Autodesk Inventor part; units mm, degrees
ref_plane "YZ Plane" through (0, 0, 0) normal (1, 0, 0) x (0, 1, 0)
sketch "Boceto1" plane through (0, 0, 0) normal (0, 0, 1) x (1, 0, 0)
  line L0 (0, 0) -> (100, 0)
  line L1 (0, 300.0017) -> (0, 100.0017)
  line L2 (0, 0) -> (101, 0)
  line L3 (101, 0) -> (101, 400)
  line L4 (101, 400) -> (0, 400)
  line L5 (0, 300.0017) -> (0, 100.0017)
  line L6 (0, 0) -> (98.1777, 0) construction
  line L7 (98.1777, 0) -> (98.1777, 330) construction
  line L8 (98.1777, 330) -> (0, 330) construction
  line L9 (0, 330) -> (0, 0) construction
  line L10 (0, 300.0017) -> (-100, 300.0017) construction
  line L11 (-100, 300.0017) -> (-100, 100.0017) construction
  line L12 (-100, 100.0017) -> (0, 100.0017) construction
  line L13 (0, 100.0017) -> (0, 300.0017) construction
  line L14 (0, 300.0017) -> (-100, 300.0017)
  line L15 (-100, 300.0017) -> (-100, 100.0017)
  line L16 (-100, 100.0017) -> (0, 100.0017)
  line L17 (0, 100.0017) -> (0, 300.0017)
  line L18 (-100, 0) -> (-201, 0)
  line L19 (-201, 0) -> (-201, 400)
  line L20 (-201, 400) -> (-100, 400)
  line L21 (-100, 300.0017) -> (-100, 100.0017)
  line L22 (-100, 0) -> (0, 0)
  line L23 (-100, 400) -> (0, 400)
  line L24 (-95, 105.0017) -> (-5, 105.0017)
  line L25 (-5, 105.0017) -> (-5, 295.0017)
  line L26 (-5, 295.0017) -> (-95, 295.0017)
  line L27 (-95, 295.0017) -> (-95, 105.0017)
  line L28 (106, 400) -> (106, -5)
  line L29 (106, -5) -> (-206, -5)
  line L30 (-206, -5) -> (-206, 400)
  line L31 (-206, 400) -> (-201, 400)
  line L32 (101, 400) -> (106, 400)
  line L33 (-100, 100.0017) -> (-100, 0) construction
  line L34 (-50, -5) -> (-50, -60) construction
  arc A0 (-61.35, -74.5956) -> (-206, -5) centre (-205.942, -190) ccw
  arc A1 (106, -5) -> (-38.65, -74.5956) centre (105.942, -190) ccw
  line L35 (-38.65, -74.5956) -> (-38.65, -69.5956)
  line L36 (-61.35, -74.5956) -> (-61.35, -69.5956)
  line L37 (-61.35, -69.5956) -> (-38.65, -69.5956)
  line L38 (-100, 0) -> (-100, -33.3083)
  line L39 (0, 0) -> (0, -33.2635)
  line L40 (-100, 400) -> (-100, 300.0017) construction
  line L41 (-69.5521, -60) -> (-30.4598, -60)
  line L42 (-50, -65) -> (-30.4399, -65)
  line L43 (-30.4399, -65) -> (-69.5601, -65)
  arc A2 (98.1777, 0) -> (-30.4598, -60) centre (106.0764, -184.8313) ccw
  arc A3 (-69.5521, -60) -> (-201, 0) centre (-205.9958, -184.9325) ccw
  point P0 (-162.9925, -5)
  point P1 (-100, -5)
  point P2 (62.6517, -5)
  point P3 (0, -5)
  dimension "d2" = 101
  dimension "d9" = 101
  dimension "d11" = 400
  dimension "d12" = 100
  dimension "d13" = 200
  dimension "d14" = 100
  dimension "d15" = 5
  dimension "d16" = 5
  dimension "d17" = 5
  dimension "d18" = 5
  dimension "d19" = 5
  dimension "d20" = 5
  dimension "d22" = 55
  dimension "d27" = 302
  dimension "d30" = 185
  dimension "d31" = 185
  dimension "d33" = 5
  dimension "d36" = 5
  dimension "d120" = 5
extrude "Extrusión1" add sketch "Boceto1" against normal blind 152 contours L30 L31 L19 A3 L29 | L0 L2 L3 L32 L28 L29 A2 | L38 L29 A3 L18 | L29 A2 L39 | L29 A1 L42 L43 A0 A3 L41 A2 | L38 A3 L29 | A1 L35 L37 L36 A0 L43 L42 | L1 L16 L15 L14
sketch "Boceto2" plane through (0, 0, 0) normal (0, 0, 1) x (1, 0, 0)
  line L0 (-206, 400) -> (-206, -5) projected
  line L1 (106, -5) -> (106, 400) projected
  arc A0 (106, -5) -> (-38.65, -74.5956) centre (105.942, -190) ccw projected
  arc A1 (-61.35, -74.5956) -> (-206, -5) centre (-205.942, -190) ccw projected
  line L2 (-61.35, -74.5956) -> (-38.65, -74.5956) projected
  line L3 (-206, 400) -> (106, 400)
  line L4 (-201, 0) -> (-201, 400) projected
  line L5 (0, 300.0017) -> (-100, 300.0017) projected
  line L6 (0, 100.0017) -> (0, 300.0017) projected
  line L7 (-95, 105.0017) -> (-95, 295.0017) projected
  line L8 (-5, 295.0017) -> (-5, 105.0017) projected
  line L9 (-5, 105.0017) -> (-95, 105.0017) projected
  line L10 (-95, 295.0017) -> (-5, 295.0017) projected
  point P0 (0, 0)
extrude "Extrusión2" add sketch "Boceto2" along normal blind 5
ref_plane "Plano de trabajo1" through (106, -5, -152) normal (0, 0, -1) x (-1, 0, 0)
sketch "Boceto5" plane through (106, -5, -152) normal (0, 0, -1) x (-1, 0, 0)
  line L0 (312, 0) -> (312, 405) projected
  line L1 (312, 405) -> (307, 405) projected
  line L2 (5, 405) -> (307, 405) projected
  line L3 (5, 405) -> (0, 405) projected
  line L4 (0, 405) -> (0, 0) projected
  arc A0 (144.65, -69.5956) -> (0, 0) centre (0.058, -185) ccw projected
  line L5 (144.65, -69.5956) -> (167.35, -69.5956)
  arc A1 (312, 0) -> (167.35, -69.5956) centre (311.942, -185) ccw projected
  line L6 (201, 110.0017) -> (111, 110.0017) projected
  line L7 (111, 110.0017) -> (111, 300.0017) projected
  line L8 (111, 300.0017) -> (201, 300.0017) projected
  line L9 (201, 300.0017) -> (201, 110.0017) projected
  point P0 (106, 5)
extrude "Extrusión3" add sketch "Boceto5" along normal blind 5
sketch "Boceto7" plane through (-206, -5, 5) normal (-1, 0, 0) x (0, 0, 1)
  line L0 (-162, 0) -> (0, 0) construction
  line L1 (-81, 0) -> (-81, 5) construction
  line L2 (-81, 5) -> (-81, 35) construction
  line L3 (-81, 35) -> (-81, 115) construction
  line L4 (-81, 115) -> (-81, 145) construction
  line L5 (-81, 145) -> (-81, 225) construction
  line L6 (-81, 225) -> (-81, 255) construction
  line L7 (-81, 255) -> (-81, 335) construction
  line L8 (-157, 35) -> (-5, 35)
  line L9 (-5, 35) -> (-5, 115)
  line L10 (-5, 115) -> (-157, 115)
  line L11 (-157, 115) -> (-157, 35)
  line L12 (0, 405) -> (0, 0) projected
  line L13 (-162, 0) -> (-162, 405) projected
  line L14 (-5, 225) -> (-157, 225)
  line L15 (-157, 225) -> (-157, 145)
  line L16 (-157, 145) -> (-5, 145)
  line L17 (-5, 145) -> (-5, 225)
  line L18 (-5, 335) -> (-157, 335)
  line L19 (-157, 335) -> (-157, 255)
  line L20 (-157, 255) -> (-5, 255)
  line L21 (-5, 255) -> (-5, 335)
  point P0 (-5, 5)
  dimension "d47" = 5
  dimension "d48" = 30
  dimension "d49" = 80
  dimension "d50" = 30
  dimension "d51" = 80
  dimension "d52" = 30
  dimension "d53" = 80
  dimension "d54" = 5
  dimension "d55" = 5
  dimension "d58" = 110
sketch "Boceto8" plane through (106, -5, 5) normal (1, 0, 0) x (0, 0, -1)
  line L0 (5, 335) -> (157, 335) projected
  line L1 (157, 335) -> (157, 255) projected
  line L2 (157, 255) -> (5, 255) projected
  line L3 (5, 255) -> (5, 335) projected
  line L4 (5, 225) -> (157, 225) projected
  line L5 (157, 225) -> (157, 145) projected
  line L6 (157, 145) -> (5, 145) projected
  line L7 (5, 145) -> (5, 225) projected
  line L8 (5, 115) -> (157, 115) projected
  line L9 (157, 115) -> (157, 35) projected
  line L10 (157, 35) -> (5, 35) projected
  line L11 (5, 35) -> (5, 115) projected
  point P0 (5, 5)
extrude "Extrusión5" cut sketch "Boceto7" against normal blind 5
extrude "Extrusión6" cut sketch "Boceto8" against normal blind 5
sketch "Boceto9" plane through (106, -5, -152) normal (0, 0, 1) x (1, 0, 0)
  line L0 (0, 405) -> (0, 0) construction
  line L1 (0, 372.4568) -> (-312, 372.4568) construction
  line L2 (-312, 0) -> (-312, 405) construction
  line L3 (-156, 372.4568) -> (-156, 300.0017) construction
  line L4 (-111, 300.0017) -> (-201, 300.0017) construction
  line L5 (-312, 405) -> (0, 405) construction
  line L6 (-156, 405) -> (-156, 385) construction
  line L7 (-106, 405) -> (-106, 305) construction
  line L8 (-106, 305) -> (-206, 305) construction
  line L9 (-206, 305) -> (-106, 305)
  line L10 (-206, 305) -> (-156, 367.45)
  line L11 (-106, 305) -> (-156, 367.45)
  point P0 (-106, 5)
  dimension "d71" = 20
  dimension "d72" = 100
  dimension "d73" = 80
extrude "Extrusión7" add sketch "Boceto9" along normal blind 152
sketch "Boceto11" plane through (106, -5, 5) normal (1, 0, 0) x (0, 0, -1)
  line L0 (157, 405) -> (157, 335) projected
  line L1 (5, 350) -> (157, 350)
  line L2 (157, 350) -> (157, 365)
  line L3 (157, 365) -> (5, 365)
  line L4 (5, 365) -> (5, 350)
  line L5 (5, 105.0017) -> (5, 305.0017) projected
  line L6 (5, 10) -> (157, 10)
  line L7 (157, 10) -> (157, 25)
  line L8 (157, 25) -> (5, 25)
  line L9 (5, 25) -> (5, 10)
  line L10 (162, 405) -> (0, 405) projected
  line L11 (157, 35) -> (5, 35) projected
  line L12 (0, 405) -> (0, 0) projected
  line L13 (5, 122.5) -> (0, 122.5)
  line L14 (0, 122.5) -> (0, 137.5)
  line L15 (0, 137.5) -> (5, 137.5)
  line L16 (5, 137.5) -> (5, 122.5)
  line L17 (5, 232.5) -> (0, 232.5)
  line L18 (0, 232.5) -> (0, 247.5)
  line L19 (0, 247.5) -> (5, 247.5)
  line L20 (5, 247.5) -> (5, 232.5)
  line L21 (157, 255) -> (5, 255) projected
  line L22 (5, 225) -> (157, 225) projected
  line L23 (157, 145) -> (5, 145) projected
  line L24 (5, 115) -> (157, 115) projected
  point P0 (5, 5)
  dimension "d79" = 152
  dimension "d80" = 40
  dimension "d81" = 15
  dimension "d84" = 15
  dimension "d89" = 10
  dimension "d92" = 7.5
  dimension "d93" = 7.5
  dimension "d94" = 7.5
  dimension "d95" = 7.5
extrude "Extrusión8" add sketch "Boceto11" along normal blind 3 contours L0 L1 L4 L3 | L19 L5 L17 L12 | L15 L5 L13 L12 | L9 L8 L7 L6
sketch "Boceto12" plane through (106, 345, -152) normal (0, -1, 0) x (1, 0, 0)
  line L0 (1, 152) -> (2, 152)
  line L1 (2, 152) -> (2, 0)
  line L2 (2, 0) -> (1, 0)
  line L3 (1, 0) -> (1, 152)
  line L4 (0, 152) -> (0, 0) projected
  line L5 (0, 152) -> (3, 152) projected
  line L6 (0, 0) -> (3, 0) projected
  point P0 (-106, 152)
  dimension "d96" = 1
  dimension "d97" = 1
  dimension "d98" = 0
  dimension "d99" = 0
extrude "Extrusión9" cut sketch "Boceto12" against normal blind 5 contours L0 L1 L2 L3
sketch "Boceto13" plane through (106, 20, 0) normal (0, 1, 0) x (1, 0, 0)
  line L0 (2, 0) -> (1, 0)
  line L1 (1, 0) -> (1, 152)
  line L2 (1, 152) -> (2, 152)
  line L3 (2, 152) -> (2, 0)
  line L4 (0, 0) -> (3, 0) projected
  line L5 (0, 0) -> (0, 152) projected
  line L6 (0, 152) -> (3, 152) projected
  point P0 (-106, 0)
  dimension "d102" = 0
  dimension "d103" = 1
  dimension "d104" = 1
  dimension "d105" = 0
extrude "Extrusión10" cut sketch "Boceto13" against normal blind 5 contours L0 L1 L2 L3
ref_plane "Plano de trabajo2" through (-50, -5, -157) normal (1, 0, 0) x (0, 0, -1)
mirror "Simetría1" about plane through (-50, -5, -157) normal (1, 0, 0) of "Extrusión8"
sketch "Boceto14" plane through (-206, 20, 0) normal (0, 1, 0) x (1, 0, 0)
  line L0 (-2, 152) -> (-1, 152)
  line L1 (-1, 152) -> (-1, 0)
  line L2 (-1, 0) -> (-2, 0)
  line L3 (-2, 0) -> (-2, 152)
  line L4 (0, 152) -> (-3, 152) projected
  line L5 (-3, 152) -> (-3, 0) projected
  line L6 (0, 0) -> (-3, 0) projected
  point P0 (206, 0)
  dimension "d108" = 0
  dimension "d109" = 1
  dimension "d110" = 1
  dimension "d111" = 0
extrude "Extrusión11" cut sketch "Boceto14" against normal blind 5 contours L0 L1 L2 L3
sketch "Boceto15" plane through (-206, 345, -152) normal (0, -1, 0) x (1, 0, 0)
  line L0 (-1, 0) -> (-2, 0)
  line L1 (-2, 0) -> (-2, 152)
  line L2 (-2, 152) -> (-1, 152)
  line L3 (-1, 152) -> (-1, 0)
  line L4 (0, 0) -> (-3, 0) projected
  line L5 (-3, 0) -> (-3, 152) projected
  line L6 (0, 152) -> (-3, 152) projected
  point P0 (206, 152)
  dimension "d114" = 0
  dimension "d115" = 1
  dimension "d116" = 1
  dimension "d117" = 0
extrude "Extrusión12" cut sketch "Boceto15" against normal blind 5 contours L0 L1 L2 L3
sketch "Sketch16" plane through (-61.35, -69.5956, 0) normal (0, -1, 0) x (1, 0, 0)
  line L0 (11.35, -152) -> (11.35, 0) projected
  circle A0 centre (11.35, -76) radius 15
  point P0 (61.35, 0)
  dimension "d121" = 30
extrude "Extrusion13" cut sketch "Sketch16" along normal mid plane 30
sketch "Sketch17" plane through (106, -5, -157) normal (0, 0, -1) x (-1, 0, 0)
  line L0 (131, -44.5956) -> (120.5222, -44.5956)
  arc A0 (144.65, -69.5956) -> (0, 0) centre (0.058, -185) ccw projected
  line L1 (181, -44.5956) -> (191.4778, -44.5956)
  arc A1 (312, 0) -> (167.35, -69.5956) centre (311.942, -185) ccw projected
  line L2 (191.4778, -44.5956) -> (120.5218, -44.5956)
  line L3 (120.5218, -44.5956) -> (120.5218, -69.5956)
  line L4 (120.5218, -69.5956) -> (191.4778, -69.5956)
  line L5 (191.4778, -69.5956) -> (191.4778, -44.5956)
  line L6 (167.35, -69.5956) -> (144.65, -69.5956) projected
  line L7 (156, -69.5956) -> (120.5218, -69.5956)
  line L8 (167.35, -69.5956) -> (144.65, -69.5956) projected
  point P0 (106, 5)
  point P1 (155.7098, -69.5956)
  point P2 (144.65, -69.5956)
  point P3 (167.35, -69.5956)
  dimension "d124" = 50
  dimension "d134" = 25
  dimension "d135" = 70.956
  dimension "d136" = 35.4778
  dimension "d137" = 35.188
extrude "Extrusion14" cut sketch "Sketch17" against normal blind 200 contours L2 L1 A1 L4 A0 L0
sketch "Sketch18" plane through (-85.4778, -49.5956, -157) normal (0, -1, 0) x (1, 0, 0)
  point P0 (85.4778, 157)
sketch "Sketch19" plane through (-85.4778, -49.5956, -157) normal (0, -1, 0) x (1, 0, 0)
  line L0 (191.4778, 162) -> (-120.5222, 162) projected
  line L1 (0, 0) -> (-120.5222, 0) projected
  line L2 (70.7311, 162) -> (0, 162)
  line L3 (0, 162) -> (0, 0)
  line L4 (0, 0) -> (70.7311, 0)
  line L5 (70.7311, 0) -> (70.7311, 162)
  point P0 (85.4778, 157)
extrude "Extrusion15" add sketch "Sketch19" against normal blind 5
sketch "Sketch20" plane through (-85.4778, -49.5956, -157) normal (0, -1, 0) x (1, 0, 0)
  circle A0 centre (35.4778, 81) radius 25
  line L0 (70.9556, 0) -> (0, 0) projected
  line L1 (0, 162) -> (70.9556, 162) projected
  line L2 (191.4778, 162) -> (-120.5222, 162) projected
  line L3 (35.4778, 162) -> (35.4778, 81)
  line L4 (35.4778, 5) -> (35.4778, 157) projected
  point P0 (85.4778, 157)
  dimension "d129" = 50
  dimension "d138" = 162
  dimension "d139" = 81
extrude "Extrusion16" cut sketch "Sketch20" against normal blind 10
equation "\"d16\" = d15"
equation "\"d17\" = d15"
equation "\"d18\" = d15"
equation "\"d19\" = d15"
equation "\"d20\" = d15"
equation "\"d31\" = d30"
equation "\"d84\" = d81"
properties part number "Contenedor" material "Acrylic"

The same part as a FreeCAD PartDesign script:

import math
import FreeCAD as App
import Part
import Sketcher

V = App.Vector


def add_polygon(sketch, points):
    """Adds a closed chain of lines whose ends are joined by coincident constraints."""
    first, n = sketch.GeometryCount, len(points)
    for a, b in zip(points, points[1:] + points[:1]):
        sketch.addGeometry(Part.LineSegment(App.Vector(*a, 0), App.Vector(*b, 0)), False)
    for i in range(n):
        sketch.addConstraint(Sketcher.Constraint("Coincident", first + i, 2, first + (i + 1) % n, 1))

doc = App.newDocument("Part")
body = doc.addObject("PartDesign::Body", "Body")
body.AllowCompound = True

# Sketch on XY plane
sketch1 = body.newObject("Sketcher::SketchObject", "Sketch")
sketch1.AttachmentSupport = (doc.getObject("XY_Plane"), [""])
sketch1.MapMode = "FlatFace"
sketch1.addGeometry(Part.LineSegment(V(-206, 400, 0), V(-206, -5, 0)), False)  # 0
sketch1.addGeometry(Part.ArcOfCircle(Part.Circle(V(-205.9, -190, 0), V(0, 0, 1), 185), math.radians(39), math.radians(90)), False)  # 1
sketch1.addGeometry(Part.LineSegment(V(-61.4, -74.6, 0), V(-61.4, -69.6, 0)), False)  # 2
sketch1.addGeometry(Part.LineSegment(V(-61.4, -69.6, 0), V(-38.6, -69.6, 0)), False)  # 3
sketch1.addGeometry(Part.LineSegment(V(-38.6, -69.6, 0), V(-38.6, -74.6, 0)), False)  # 4
sketch1.addGeometry(Part.ArcOfCircle(Part.Circle(V(105.9, -190, 0), V(0, 0, 1), 185), math.radians(90), math.radians(141)), False)  # 5
sketch1.addGeometry(Part.LineSegment(V(106, -5, 0), V(106, 400, 0)), False)  # 6
sketch1.addGeometry(Part.LineSegment(V(106, 400, 0), V(101, 400, 0)), False)  # 7
sketch1.addGeometry(Part.LineSegment(V(101, 400, 0), V(101, 0, 0)), False)  # 8
sketch1.addGeometry(Part.LineSegment(V(101, 0, 0), V(98.2, 0, 0)), False)  # 9
sketch1.addGeometry(Part.ArcOfCircle(Part.Circle(V(106.1, -184.8, 0), V(0, 0, 1), 185), math.radians(92.45), math.radians(103.58)), False)  # 10
sketch1.addGeometry(Part.LineSegment(V(62.7, -5, 0), V(0, -5, 0)), False)  # 11
sketch1.addGeometry(Part.LineSegment(V(0, -5, 0), V(0, -33.3, 0)), False)  # 12
sketch1.addGeometry(Part.ArcOfCircle(Part.Circle(V(106.1, -184.8, 0), V(0, 0, 1), 185), math.radians(124.99), math.radians(137.56)), False)  # 13
sketch1.addGeometry(Part.LineSegment(V(-30.5, -60, 0), V(-69.6, -60, 0)), False)  # 14
sketch1.addGeometry(Part.ArcOfCircle(Part.Circle(V(-206, -184.9, 0), V(0, 0, 1), 185), math.radians(42.48), math.radians(55.04)), False)  # 15
sketch1.addGeometry(Part.LineSegment(V(-100, -33.3, 0), V(-100, 0, 0)), False)  # 16
sketch1.addGeometry(Part.LineSegment(V(-100, 0, 0), V(-201, 0, 0)), False)  # 17
sketch1.addGeometry(Part.LineSegment(V(-201, 0, 0), V(-201, 400, 0)), False)  # 18
sketch1.addGeometry(Part.LineSegment(V(-201, 400, 0), V(-206, 400, 0)), False)  # 19
add_polygon(sketch1, [(0, 100), (0, 300), (-100, 300), (-100, 100)])  # lines 20-23
add_polygon(sketch1, [(-5, 105), (-95, 105), (-95, 295), (-5, 295)])  # lines 24-27
sketch1.addConstraint(Sketcher.Constraint("Coincident", 0, 2, 1, 2))
sketch1.addConstraint(Sketcher.Constraint("Coincident", 1, 1, 2, 1))
sketch1.addConstraint(Sketcher.Constraint("Coincident", 2, 2, 3, 1))
sketch1.addConstraint(Sketcher.Constraint("Coincident", 3, 2, 4, 1))
sketch1.addConstraint(Sketcher.Constraint("Coincident", 4, 2, 5, 2))
sketch1.addConstraint(Sketcher.Constraint("Coincident", 5, 1, 6, 1))
sketch1.addConstraint(Sketcher.Constraint("Coincident", 6, 2, 7, 1))
sketch1.addConstraint(Sketcher.Constraint("Coincident", 7, 2, 8, 1))
sketch1.addConstraint(Sketcher.Constraint("Coincident", 8, 2, 9, 1))
sketch1.addConstraint(Sketcher.Constraint("Coincident", 9, 2, 10, 1))
sketch1.addConstraint(Sketcher.Constraint("Coincident", 10, 2, 11, 1))
sketch1.addConstraint(Sketcher.Constraint("Coincident", 11, 2, 12, 1))
sketch1.addConstraint(Sketcher.Constraint("Coincident", 12, 2, 13, 1))
sketch1.addConstraint(Sketcher.Constraint("Coincident", 13, 2, 14, 1))
sketch1.addConstraint(Sketcher.Constraint("Coincident", 14, 2, 15, 1))
sketch1.addConstraint(Sketcher.Constraint("Coincident", 15, 2, 16, 1))
sketch1.addConstraint(Sketcher.Constraint("Coincident", 16, 2, 17, 1))
sketch1.addConstraint(Sketcher.Constraint("Coincident", 17, 2, 18, 1))
sketch1.addConstraint(Sketcher.Constraint("Coincident", 18, 2, 19, 1))
sketch1.addConstraint(Sketcher.Constraint("Coincident", 19, 2, 0, 1))
sketch1.addConstraint(Sketcher.Constraint("Vertical", 0))
sketch1.addConstraint(Sketcher.Constraint("Vertical", 2))
sketch1.addConstraint(Sketcher.Constraint("Horizontal", 3))
sketch1.addConstraint(Sketcher.Constraint("Vertical", 4))
sketch1.addConstraint(Sketcher.Constraint("Vertical", 6))
sketch1.addConstraint(Sketcher.Constraint("Horizontal", 7))
sketch1.addConstraint(Sketcher.Constraint("Vertical", 8))
sketch1.addConstraint(Sketcher.Constraint("Horizontal", 9))
sketch1.addConstraint(Sketcher.Constraint("Horizontal", 11))
sketch1.addConstraint(Sketcher.Constraint("Vertical", 12))
sketch1.addConstraint(Sketcher.Constraint("Horizontal", 14))
sketch1.addConstraint(Sketcher.Constraint("Vertical", 16))
sketch1.addConstraint(Sketcher.Constraint("Horizontal", 17))
sketch1.addConstraint(Sketcher.Constraint("Vertical", 18))
sketch1.addConstraint(Sketcher.Constraint("Horizontal", 19))
sketch1.addConstraint(Sketcher.Constraint("Vertical", 20))
sketch1.addConstraint(Sketcher.Constraint("Horizontal", 21))
sketch1.addConstraint(Sketcher.Constraint("Vertical", 22))
sketch1.addConstraint(Sketcher.Constraint("Horizontal", 23))
sketch1.addConstraint(Sketcher.Constraint("Horizontal", 24))
sketch1.addConstraint(Sketcher.Constraint("Vertical", 25))
sketch1.addConstraint(Sketcher.Constraint("Horizontal", 26))
sketch1.addConstraint(Sketcher.Constraint("Vertical", 27))
sketch1.addConstraint(Sketcher.Constraint("Coincident", 13, 3, 10, 3))
sketch1.addConstraint(Sketcher.Constraint("Equal", 1, 5))
sketch1.addConstraint(Sketcher.Constraint("Equal", 5, 10))
sketch1.addConstraint(Sketcher.Constraint("Equal", 10, 13))
sketch1.addConstraint(Sketcher.Constraint("Equal", 13, 15))
sketch1.addConstraint(Sketcher.Constraint("PointOnObject", 8, 2, -1))
sketch1.addConstraint(Sketcher.Constraint("PointOnObject", 11, 2, -2))
sketch1.addConstraint(Sketcher.Constraint("PointOnObject", 16, 2, -1))
sketch1.addConstraint(Sketcher.Constraint("PointOnObject", 20, 2, -2))
sketch1.addConstraint(Sketcher.Constraint("Horizontal", 1, 3, 5, 3))
sketch1.addConstraint(Sketcher.Constraint("Horizontal", 1, 1, 4, 2))
sketch1.addConstraint(Sketcher.Constraint("Horizontal", 5, 1, 10, 2))
sketch1.addConstraint(Sketcher.Constraint("Horizontal", 7, 2, 18, 2))
sketch1.addConstraint(Sketcher.Constraint("Vertical", 16, 2, 21, 2))
sketch1.addConstraint(Sketcher.Constraint("Equal", 7, 19))
sketch1.addConstraint(Sketcher.Constraint("Equal", 19, 2))
sketch1.addConstraint(Sketcher.Constraint("Radius", 1, 185.0))
sketch1.addConstraint(Sketcher.Constraint("DistanceX", 7, 2, 7, 1, 5.0))
sketch1.addConstraint(Sketcher.Constraint("DistanceX", 17, 2, 17, 1, 101.0))
sketch1.addConstraint(Sketcher.Constraint("DistanceX", 21, 2, 21, 1, 100.0))
sketch1.addConstraint(Sketcher.Constraint("DistanceY", 8, 2, 8, 1, 400.0))
sketch1.addConstraint(Sketcher.Constraint("DistanceY", 20, 1, 20, 2, 200.0))
sketch1.addConstraint(Sketcher.Constraint("DistanceY", 0, 2, -1, 1, 5.0))
sketch1.addConstraint(Sketcher.Constraint("DistanceX", -1, 1, 7, 2, 101.0))
sketch1.addConstraint(Sketcher.Constraint("DistanceX", 26, 2, -1, 1, 5.0))
sketch1.addConstraint(Sketcher.Constraint("DistanceX", 22, 2, 24, 2, 5.0))
sketch1.addConstraint(Sketcher.Constraint("DistanceY", 22, 2, 24, 2, 5.0))
sketch1.addConstraint(Sketcher.Constraint("DistanceY", 25, 2, 21, 2, 5.0))
sketch1.addConstraint(Sketcher.Constraint("DistanceX", 3, 1, 3, 2, 22.7))
sketch1.addConstraint(Sketcher.Constraint("DistanceY", 13, 2, -1, 1, 60.0))
sketch1.addConstraint(Sketcher.Constraint("DistanceX", 1, 1, -1, 1, 61.35))
sketch1.addConstraint(Sketcher.Constraint("DistanceY", 15, 2, 22, 2, 133.31))
sketch1.addConstraint(Sketcher.Constraint("DistanceX", 9, 2, 9, 1, 2.8223))
sketch1.addConstraint(Sketcher.Constraint("DistanceX", 11, 2, 11, 1, 62.6517))
sketch1.addConstraint(Sketcher.Constraint("DistanceX", 14, 2, 14, 1, 39.0923))
sketch1.addConstraint(Sketcher.Constraint("DistanceY", 16, 1, 16, 2, 33.3083))
sketch1.addConstraint(Sketcher.Constraint("DistanceX", 1, 3, -1, 1, 205.942))
pad1 = body.newObject("PartDesign::Pad", "Pad")
pad1.Profile = sketch1
pad1.Length = 152
pad1.Reversed = True

# Sketch on XY plane
sketch2 = body.newObject("Sketcher::SketchObject", "Sketch001")
sketch2.AttachmentSupport = (doc.getObject("XY_Plane"), [""])
sketch2.MapMode = "FlatFace"
sketch2.addGeometry(Part.LineSegment(V(106, 400, 0), V(-206, 400, 0)), False)  # 0
sketch2.addGeometry(Part.LineSegment(V(-206, 400, 0), V(-206, -5, 0)), False)  # 1
sketch2.addGeometry(Part.ArcOfCircle(Part.Circle(V(-206, -190, 0), V(0, 0, 1), 185), math.radians(39), math.radians(90)), False)  # 2
sketch2.addGeometry(Part.LineSegment(V(-61, -75, 0), V(-39, -75, 0)), False)  # 3
sketch2.addGeometry(Part.ArcOfCircle(Part.Circle(V(106, -190, 0), V(0, 0, 1), 185), math.radians(90), math.radians(141)), False)  # 4
sketch2.addGeometry(Part.LineSegment(V(106, -5, 0), V(106, 400, 0)), False)  # 5
add_polygon(sketch2, [(-5, 105), (-95, 105), (-95, 295), (-5, 295)])  # lines 6-9
sketch2.addConstraint(Sketcher.Constraint("Coincident", 0, 2, 1, 1))
sketch2.addConstraint(Sketcher.Constraint("Coincident", 1, 2, 2, 2))
sketch2.addConstraint(Sketcher.Constraint("Coincident", 2, 1, 3, 1))
sketch2.addConstraint(Sketcher.Constraint("Coincident", 3, 2, 4, 2))
sketch2.addConstraint(Sketcher.Constraint("Coincident", 4, 1, 5, 1))
sketch2.addConstraint(Sketcher.Constraint("Coincident", 5, 2, 0, 1))
sketch2.addConstraint(Sketcher.Constraint("Horizontal", 0))
sketch2.addConstraint(Sketcher.Constraint("Vertical", 1))
sketch2.addConstraint(Sketcher.Constraint("Horizontal", 3))
sketch2.addConstraint(Sketcher.Constraint("Vertical", 5))
sketch2.addConstraint(Sketcher.Constraint("Horizontal", 6))
sketch2.addConstraint(Sketcher.Constraint("Vertical", 7))
sketch2.addConstraint(Sketcher.Constraint("Horizontal", 8))
sketch2.addConstraint(Sketcher.Constraint("Vertical", 9))
sketch2.addConstraint(Sketcher.Constraint("Equal", 2, 4))
sketch2.addConstraint(Sketcher.Constraint("Horizontal", 2, 3, 4, 3))
sketch2.addConstraint(Sketcher.Constraint("Radius", 2, 185.0))
sketch2.addConstraint(Sketcher.Constraint("DistanceX", 0, 2, 0, 1, 312.0))
sketch2.addConstraint(Sketcher.Constraint("DistanceX", 6, 2, 6, 1, 90.0))
sketch2.addConstraint(Sketcher.Constraint("DistanceY", 1, 2, 1, 1, 405.0))
sketch2.addConstraint(Sketcher.Constraint("DistanceY", 7, 1, 7, 2, 190.0))
sketch2.addConstraint(Sketcher.Constraint("DistanceX", 3, 1, 3, 2, 22.7))
sketch2.addConstraint(Sketcher.Constraint("DistanceY", 2, 3, -1, 1, 190.0))
sketch2.addConstraint(Sketcher.Constraint("DistanceX", 0, 2, -1, 1, 206.0))
sketch2.addConstraint(Sketcher.Constraint("DistanceX", 6, 2, -1, 1, 95.0))
sketch2.addConstraint(Sketcher.Constraint("DistanceX", 2, 1, -1, 1, 61.35))
sketch2.addConstraint(Sketcher.Constraint("DistanceX", 2, 3, -1, 1, 205.942))
sketch2.addConstraint(Sketcher.Constraint("DistanceY", -1, 1, 6, 2, 105.0017))
pad2 = body.newObject("PartDesign::Pad", "Pad001")
pad2.Profile = sketch2
pad2.Length = 5

# Sketch on XY plane
sketch3 = body.newObject("Sketcher::SketchObject", "Sketch002")
sketch3.AttachmentSupport = (doc.getObject("XY_Plane"), [""])
sketch3.MapMode = "FlatFace"
sketch3.AttachmentOffset = App.Placement(V(0, 0, -152), App.Rotation())
sketch3.addGeometry(Part.ArcOfCircle(Part.Circle(V(-206, -190, 0), V(0, 0, 1), 185), math.radians(39), math.radians(90)), False)  # 0
sketch3.addGeometry(Part.LineSegment(V(-206, -5, 0), V(-206, 400, 0)), False)  # 1
sketch3.addGeometry(Part.LineSegment(V(-206, 400, 0), V(106, 400, 0)), False)  # 2
sketch3.addGeometry(Part.LineSegment(V(106, 400, 0), V(106, -5, 0)), False)  # 3
sketch3.addGeometry(Part.ArcOfCircle(Part.Circle(V(106, -190, 0), V(0, 0, 1), 185), math.radians(90), math.radians(141)), False)  # 4
sketch3.addGeometry(Part.LineSegment(V(-39, -75, 0), V(-61, -75, 0)), False)  # 5
add_polygon(sketch3, [(-95, 295), (-95, 105), (-5, 105), (-5, 295)])  # lines 6-9
sketch3.addConstraint(Sketcher.Constraint("Coincident", 0, 2, 1, 1))
sketch3.addConstraint(Sketcher.Constraint("Coincident", 1, 2, 2, 1))
sketch3.addConstraint(Sketcher.Constraint("Coincident", 2, 2, 3, 1))
sketch3.addConstraint(Sketcher.Constraint("Coincident", 3, 2, 4, 1))
sketch3.addConstraint(Sketcher.Constraint("Coincident", 4, 2, 5, 1))
sketch3.addConstraint(Sketcher.Constraint("Coincident", 5, 2, 0, 1))
sketch3.addConstraint(Sketcher.Constraint("Vertical", 1))
sketch3.addConstraint(Sketcher.Constraint("Horizontal", 2))
sketch3.addConstraint(Sketcher.Constraint("Vertical", 3))
sketch3.addConstraint(Sketcher.Constraint("Horizontal", 5))
sketch3.addConstraint(Sketcher.Constraint("Vertical", 6))
sketch3.addConstraint(Sketcher.Constraint("Horizontal", 7))
sketch3.addConstraint(Sketcher.Constraint("Vertical", 8))
sketch3.addConstraint(Sketcher.Constraint("Horizontal", 9))
sketch3.addConstraint(Sketcher.Constraint("Equal", 0, 4))
sketch3.addConstraint(Sketcher.Constraint("Horizontal", 0, 3, 4, 3))
sketch3.addConstraint(Sketcher.Constraint("Radius", 0, 185.0))
sketch3.addConstraint(Sketcher.Constraint("DistanceX", 2, 1, 2, 2, 312.0))
sketch3.addConstraint(Sketcher.Constraint("DistanceX", 7, 1, 7, 2, 90.0))
sketch3.addConstraint(Sketcher.Constraint("DistanceY", 1, 1, 1, 2, 405.0))
sketch3.addConstraint(Sketcher.Constraint("DistanceY", 6, 2, 6, 1, 190.0))
sketch3.addConstraint(Sketcher.Constraint("DistanceX", 5, 2, 5, 1, 22.7))
sketch3.addConstraint(Sketcher.Constraint("DistanceY", 0, 3, -1, 1, 190.0))
sketch3.addConstraint(Sketcher.Constraint("DistanceX", 0, 2, -1, 1, 206.0))
sketch3.addConstraint(Sketcher.Constraint("DistanceX", 6, 2, -1, 1, 95.0))
sketch3.addConstraint(Sketcher.Constraint("DistanceX", 4, 2, -1, 1, 38.65))
sketch3.addConstraint(Sketcher.Constraint("DistanceX", 0, 3, -1, 1, 205.942))
sketch3.addConstraint(Sketcher.Constraint("DistanceY", -1, 1, 6, 2, 105.0017))
pad3 = body.newObject("PartDesign::Pad", "Pad002")
pad3.Profile = sketch3
pad3.Length = 5
pad3.Reversed = True

# Sketch on YZ plane
sketch4 = body.newObject("Sketcher::SketchObject", "Sketch003")
sketch4.AttachmentSupport = (doc.getObject("YZ_Plane"), [""])
sketch4.MapMode = "FlatFace"
sketch4.AttachmentOffset = App.Placement(V(0, 0, -206), App.Rotation())
add_polygon(sketch4, [(110, -152), (30, -152), (30, 0), (110, 0)])  # lines 0-3
add_polygon(sketch4, [(140, 0), (220, 0), (220, -152), (140, -152)])  # lines 4-7
add_polygon(sketch4, [(250, 0), (330, 0), (330, -152), (250, -152)])  # lines 8-11
sketch4.addConstraint(Sketcher.Constraint("Horizontal", 0))
sketch4.addConstraint(Sketcher.Constraint("Vertical", 1))
sketch4.addConstraint(Sketcher.Constraint("Horizontal", 2))
sketch4.addConstraint(Sketcher.Constraint("Vertical", 3))
sketch4.addConstraint(Sketcher.Constraint("Horizontal", 4))
sketch4.addConstraint(Sketcher.Constraint("Vertical", 5))
sketch4.addConstraint(Sketcher.Constraint("Horizontal", 6))
sketch4.addConstraint(Sketcher.Constraint("Vertical", 7))
sketch4.addConstraint(Sketcher.Constraint("Horizontal", 8))
sketch4.addConstraint(Sketcher.Constraint("Vertical", 9))
sketch4.addConstraint(Sketcher.Constraint("Horizontal", 10))
sketch4.addConstraint(Sketcher.Constraint("Vertical", 11))
sketch4.addConstraint(Sketcher.Constraint("PointOnObject", 1, 2, -1))
sketch4.addConstraint(Sketcher.Constraint("PointOnObject", 4, 2, -1))
sketch4.addConstraint(Sketcher.Constraint("PointOnObject", 8, 2, -1))
sketch4.addConstraint(Sketcher.Constraint("Horizontal", 3, 2, 5, 2))
sketch4.addConstraint(Sketcher.Constraint("Horizontal", 6, 2, 9, 2))
sketch4.addConstraint(Sketcher.Constraint("Equal", 2, 4))
sketch4.addConstraint(Sketcher.Constraint("Equal", 6, 8))
sketch4.addConstraint(Sketcher.Constraint("DistanceX", 0, 2, 0, 1, 80.0))
sketch4.addConstraint(Sketcher.Constraint("DistanceX", -1, 1, 0, 2, 30.0))
sketch4.addConstraint(Sketcher.Constraint("DistanceX", 2, 2, 4, 2, 110.0))
sketch4.addConstraint(Sketcher.Constraint("DistanceX", 4, 2, 8, 2, 110.0))
sketch4.addConstraint(Sketcher.Constraint("DistanceY", 1, 1, 1, 2, 152.0))
pocket1 = body.newObject("PartDesign::Pocket", "Pocket")
pocket1.Profile = sketch4
pocket1.Length = 5
pocket1.Reversed = True

# Sketch on YZ plane
sketch5 = body.newObject("Sketcher::SketchObject", "Sketch004")
sketch5.AttachmentSupport = (doc.getObject("YZ_Plane"), [""])
sketch5.MapMode = "FlatFace"
sketch5.AttachmentOffset = App.Placement(V(0, 0, 106), App.Rotation())
add_polygon(sketch5, [(330, -152), (330, 0), (250, 0), (250, -152)])  # lines 0-3
add_polygon(sketch5, [(220, -152), (220, 0), (140, 0), (140, -152)])  # lines 4-7
add_polygon(sketch5, [(110, -152), (110, 0), (30, 0), (30, -152)])  # lines 8-11
sketch5.addConstraint(Sketcher.Constraint("Vertical", 0))
sketch5.addConstraint(Sketcher.Constraint("Horizontal", 1))
sketch5.addConstraint(Sketcher.Constraint("Vertical", 2))
sketch5.addConstraint(Sketcher.Constraint("Horizontal", 3))
sketch5.addConstraint(Sketcher.Constraint("Vertical", 4))
sketch5.addConstraint(Sketcher.Constraint("Horizontal", 5))
sketch5.addConstraint(Sketcher.Constraint("Vertical", 6))
sketch5.addConstraint(Sketcher.Constraint("Horizontal", 7))
sketch5.addConstraint(Sketcher.Constraint("Vertical", 8))
sketch5.addConstraint(Sketcher.Constraint("Horizontal", 9))
sketch5.addConstraint(Sketcher.Constraint("Vertical", 10))
sketch5.addConstraint(Sketcher.Constraint("Horizontal", 11))
sketch5.addConstraint(Sketcher.Constraint("PointOnObject", 0, 2, -1))
sketch5.addConstraint(Sketcher.Constraint("PointOnObject", 4, 2, -1))
sketch5.addConstraint(Sketcher.Constraint("PointOnObject", 8, 2, -1))
sketch5.addConstraint(Sketcher.Constraint("Horizontal", 3, 2, 6, 2))
sketch5.addConstraint(Sketcher.Constraint("Horizontal", 7, 2, 10, 2))
sketch5.addConstraint(Sketcher.Constraint("Equal", 3, 5))
sketch5.addConstraint(Sketcher.Constraint("Equal", 7, 9))
sketch5.addConstraint(Sketcher.Constraint("DistanceX", 1, 2, 1, 1, 80.0))
sketch5.addConstraint(Sketcher.Constraint("DistanceY", 0, 1, 0, 2, 152.0))
sketch5.addConstraint(Sketcher.Constraint("DistanceX", -1, 1, 0, 2, 330.0))
sketch5.addConstraint(Sketcher.Constraint("DistanceX", -1, 1, 4, 2, 220.0))
sketch5.addConstraint(Sketcher.Constraint("DistanceX", -1, 1, 8, 2, 110.0))
pocket2 = body.newObject("PartDesign::Pocket", "Pocket001")
pocket2.Profile = sketch5
pocket2.Length = 5

# Sketch on XY plane
sketch6 = body.newObject("Sketcher::SketchObject", "Sketch005")
sketch6.AttachmentSupport = (doc.getObject("XY_Plane"), [""])
sketch6.MapMode = "FlatFace"
sketch6.AttachmentOffset = App.Placement(V(0, 0, -152), App.Rotation())
add_polygon(sketch6, [(-50, 362), (-100, 300), (0, 300)])  # lines 0-2
sketch6.addConstraint(Sketcher.Constraint("Horizontal", 1))
sketch6.addConstraint(Sketcher.Constraint("PointOnObject", 1, 2, -2))
sketch6.addConstraint(Sketcher.Constraint("Equal", 0, 2))
sketch6.addConstraint(Sketcher.Constraint("DistanceX", 1, 1, 1, 2, 100.0))
sketch6.addConstraint(Sketcher.Constraint("Distance", 0, 80.0))
sketch6.addConstraint(Sketcher.Constraint("DistanceY", -1, 1, 0, 2, 300.0))
pad4 = body.newObject("PartDesign::Pad", "Pad003")
pad4.Profile = sketch6
pad4.Length = 152

# Sketch on YZ plane
sketch7 = body.newObject("Sketcher::SketchObject", "Sketch006")
sketch7.AttachmentSupport = (doc.getObject("YZ_Plane"), [""])
sketch7.MapMode = "FlatFace"
sketch7.AttachmentOffset = App.Placement(V(0, 0, 106), App.Rotation())
add_polygon(sketch7, [(345, -152), (360, -152), (360, 0), (345, 0)])  # lines 0-3
add_polygon(sketch7, [(242, 0), (242, 5), (228, 5), (228, 0)])  # lines 4-7
add_polygon(sketch7, [(132, 0), (132, 5), (118, 5), (118, 0)])  # lines 8-11
add_polygon(sketch7, [(20, 0), (5, 0), (5, -152), (20, -152)])  # lines 12-15
sketch7.addConstraint(Sketcher.Constraint("Horizontal", 0))
sketch7.addConstraint(Sketcher.Constraint("Vertical", 1))
sketch7.addConstraint(Sketcher.Constraint("Horizontal", 2))
sketch7.addConstraint(Sketcher.Constraint("Vertical", 3))
sketch7.addConstraint(Sketcher.Constraint("Vertical", 4))
sketch7.addConstraint(Sketcher.Constraint("Horizontal", 5))
sketch7.addConstraint(Sketcher.Constraint("Vertical", 6))
sketch7.addConstraint(Sketcher.Constraint("Horizontal", 7))
sketch7.addConstraint(Sketcher.Constraint("Vertical", 8))
sketch7.addConstraint(Sketcher.Constraint("Horizontal", 9))
sketch7.addConstraint(Sketcher.Constraint("Vertical", 10))
sketch7.addConstraint(Sketcher.Constraint("Horizontal", 11))
sketch7.addConstraint(Sketcher.Constraint("Horizontal", 12))
sketch7.addConstraint(Sketcher.Constraint("Vertical", 13))
sketch7.addConstraint(Sketcher.Constraint("Horizontal", 14))
sketch7.addConstraint(Sketcher.Constraint("Vertical", 15))
sketch7.addConstraint(Sketcher.Constraint("PointOnObject", 1, 2, -1))
sketch7.addConstraint(Sketcher.Constraint("PointOnObject", 6, 2, -1))
sketch7.addConstraint(Sketcher.Constraint("PointOnObject", 10, 2, -1))
sketch7.addConstraint(Sketcher.Constraint("PointOnObject", 12, 2, -1))
sketch7.addConstraint(Sketcher.Constraint("Horizontal", 5, 2, 8, 2))
sketch7.addConstraint(Sketcher.Constraint("Horizontal", 3, 2, 13, 2))
sketch7.addConstraint(Sketcher.Constraint("Equal", 2, 5))
sketch7.addConstraint(Sketcher.Constraint("Equal", 7, 9))
sketch7.addConstraint(Sketcher.Constraint("Equal", 11, 12))
sketch7.addConstraint(Sketcher.Constraint("DistanceX", 0, 1, 0, 2, 15.0))
sketch7.addConstraint(Sketcher.Constraint("DistanceY", 1, 1, 1, 2, 152.0))
sketch7.addConstraint(Sketcher.Constraint("DistanceY", 4, 1, 4, 2, 5.0))
sketch7.addConstraint(Sketcher.Constraint("DistanceX", -1, 1, 0, 2, 360.0))
sketch7.addConstraint(Sketcher.Constraint("DistanceX", -1, 1, 12, 2, 5.0))
sketch7.addConstraint(Sketcher.Constraint("DistanceX", 8, 2, 5, 2, 95.0))
sketch7.addConstraint(Sketcher.Constraint("DistanceX", -1, 1, 4, 2, 242.5))
pad5 = body.newObject("PartDesign::Pad", "Pad004")
pad5.Profile = sketch7
pad5.Length = 3

# Sketch on XZ plane
sketch8 = body.newObject("Sketcher::SketchObject", "Sketch007")
sketch8.AttachmentSupport = (doc.getObject("XZ_Plane"), [""])
sketch8.MapMode = "FlatFace"
sketch8.AttachmentOffset = App.Placement(V(0, 0, -345), App.Rotation())
add_polygon(sketch8, [(108, 0), (107, 0), (107, -152), (108, -152)])  # lines 0-3
sketch8.addConstraint(Sketcher.Constraint("Horizontal", 0))
sketch8.addConstraint(Sketcher.Constraint("Vertical", 1))
sketch8.addConstraint(Sketcher.Constraint("Horizontal", 2))
sketch8.addConstraint(Sketcher.Constraint("Vertical", 3))
sketch8.addConstraint(Sketcher.Constraint("PointOnObject", 0, 2, -1))
sketch8.addConstraint(Sketcher.Constraint("DistanceX", 0, 2, 0, 1, 1.0))
sketch8.addConstraint(Sketcher.Constraint("DistanceY", 1, 2, 1, 1, 152.0))
sketch8.addConstraint(Sketcher.Constraint("DistanceX", -1, 1, 0, 2, 107.0))
pocket3 = body.newObject("PartDesign::Pocket", "Pocket002")
pocket3.Profile = sketch8
pocket3.Length = 5

# Sketch on XZ plane
sketch9 = body.newObject("Sketcher::SketchObject", "Sketch008")
sketch9.AttachmentSupport = (doc.getObject("XZ_Plane"), [""])
sketch9.MapMode = "FlatFace"
sketch9.AttachmentOffset = App.Placement(V(0, 0, -20), App.Rotation())
add_polygon(sketch9, [(107, 0), (108, 0), (108, -152), (107, -152)])  # lines 0-3
sketch9.addConstraint(Sketcher.Constraint("Horizontal", 0))
sketch9.addConstraint(Sketcher.Constraint("Vertical", 1))
sketch9.addConstraint(Sketcher.Constraint("Horizontal", 2))
sketch9.addConstraint(Sketcher.Constraint("Vertical", 3))
sketch9.addConstraint(Sketcher.Constraint("PointOnObject", 0, 2, -1))
sketch9.addConstraint(Sketcher.Constraint("DistanceX", 0, 1, 0, 2, 1.0))
sketch9.addConstraint(Sketcher.Constraint("DistanceY", 1, 2, 1, 1, 152.0))
sketch9.addConstraint(Sketcher.Constraint("DistanceX", -1, 1, 0, 2, 108.0))
pocket4 = body.newObject("PartDesign::Pocket", "Pocket003")
pocket4.Profile = sketch9
pocket4.Length = 5
pocket4.Reversed = True
doc.recompute()

datumplane = body.newObject("PartDesign::Plane", "DatumPlane")
datumplane.AttachmentSupport = (doc.getObject("YZ_Plane"), [""])
datumplane.MapMode = "FlatFace"
datumplane.AttachmentOffset = App.Placement(V(0, 0, -50), App.Rotation())
mirrored = body.newObject("PartDesign::Mirrored", "Mirrored")
mirrored.Originals = [pad5]
mirrored.MirrorPlane = (datumplane, [""])
body.Tip = mirrored

# Sketch on XZ plane
sketch10 = body.newObject("Sketcher::SketchObject", "Sketch009")
sketch10.AttachmentSupport = (doc.getObject("XZ_Plane"), [""])
sketch10.MapMode = "FlatFace"
sketch10.AttachmentOffset = App.Placement(V(0, 0, -20), App.Rotation())
add_polygon(sketch10, [(-207, -152), (-208, -152), (-208, 0), (-207, 0)])  # lines 0-3
sketch10.addConstraint(Sketcher.Constraint("Horizontal", 0))
sketch10.addConstraint(Sketcher.Constraint("Vertical", 1))
sketch10.addConstraint(Sketcher.Constraint("Horizontal", 2))
sketch10.addConstraint(Sketcher.Constraint("Vertical", 3))
sketch10.addConstraint(Sketcher.Constraint("PointOnObject", 1, 2, -1))
sketch10.addConstraint(Sketcher.Constraint("DistanceX", 0, 2, 0, 1, 1.0))
sketch10.addConstraint(Sketcher.Constraint("DistanceY", 1, 1, 1, 2, 152.0))
sketch10.addConstraint(Sketcher.Constraint("DistanceX", 0, 2, -1, 1, 208.0))
pocket5 = body.newObject("PartDesign::Pocket", "Pocket004")
pocket5.Profile = sketch10
pocket5.Length = 5
pocket5.Reversed = True

# Sketch on XZ plane
sketch11 = body.newObject("Sketcher::SketchObject", "Sketch010")
sketch11.AttachmentSupport = (doc.getObject("XZ_Plane"), [""])
sketch11.MapMode = "FlatFace"
sketch11.AttachmentOffset = App.Placement(V(0, 0, -345), App.Rotation())
add_polygon(sketch11, [(-208, -152), (-207, -152), (-207, 0), (-208, 0)])  # lines 0-3
sketch11.addConstraint(Sketcher.Constraint("Horizontal", 0))
sketch11.addConstraint(Sketcher.Constraint("Vertical", 1))
sketch11.addConstraint(Sketcher.Constraint("Horizontal", 2))
sketch11.addConstraint(Sketcher.Constraint("Vertical", 3))
sketch11.addConstraint(Sketcher.Constraint("PointOnObject", 1, 2, -1))
sketch11.addConstraint(Sketcher.Constraint("DistanceX", 0, 1, 0, 2, 1.0))
sketch11.addConstraint(Sketcher.Constraint("DistanceY", 1, 1, 1, 2, 152.0))
sketch11.addConstraint(Sketcher.Constraint("DistanceX", 0, 2, -1, 1, 207.0))
pocket6 = body.newObject("PartDesign::Pocket", "Pocket005")
pocket6.Profile = sketch11
pocket6.Length = 5

# Sketch on XZ plane
sketch12 = body.newObject("Sketcher::SketchObject", "Sketch011")
sketch12.AttachmentSupport = (doc.getObject("XZ_Plane"), [""])
sketch12.MapMode = "FlatFace"
sketch12.AttachmentOffset = App.Placement(V(0, 0, 69.5956), App.Rotation())
sketch12.addGeometry(Part.Circle(V(-50, -76, 0), V(0, 0, 1), 15), False)
sketch12.addConstraint(Sketcher.Constraint("Diameter", 0, 30.0))
sketch12.addConstraint(Sketcher.Constraint("DistanceX", 0, 3, -1, 1, 50.0))
sketch12.addConstraint(Sketcher.Constraint("DistanceY", 0, 3, -1, 1, 76.0))
pocket7 = body.newObject("PartDesign::Pocket", "Pocket006")
pocket7.Profile = sketch12
pocket7.Length = 30
pocket7.Midplane = True

# Sketch on XY plane
sketch13 = body.newObject("Sketcher::SketchObject", "Sketch012")
sketch13.AttachmentSupport = (doc.getObject("XY_Plane"), [""])
sketch13.MapMode = "FlatFace"
sketch13.AttachmentOffset = App.Placement(V(0, 0, -157), App.Rotation())
sketch13.addGeometry(Part.LineSegment(V(-85, -50, 0), V(-15, -50, 0)), False)
sketch13.addGeometry(Part.ArcOfCircle(Part.Circle(V(106, -190, 0), V(0, 0, 1), 185), math.radians(130.63), math.radians(141.41)), False)
sketch13.addGeometry(Part.LineSegment(V(-39, -75, 0), V(-61, -75, 0)), False)
sketch13.addGeometry(Part.ArcOfCircle(Part.Circle(V(-206, -190, 0), V(0, 0, 1), 185), math.radians(38.59), math.radians(49.37)), False)
sketch13.addConstraint(Sketcher.Constraint("Coincident", 0, 2, 1, 1))
sketch13.addConstraint(Sketcher.Constraint("Coincident", 1, 2, 2, 1))
sketch13.addConstraint(Sketcher.Constraint("Coincident", 2, 2, 3, 1))
sketch13.addConstraint(Sketcher.Constraint("Coincident", 3, 2, 0, 1))
sketch13.addConstraint(Sketcher.Constraint("Horizontal", 0))
sketch13.addConstraint(Sketcher.Constraint("Horizontal", 2))
sketch13.addConstraint(Sketcher.Constraint("Equal", 1, 3))
sketch13.addConstraint(Sketcher.Constraint("Horizontal", 1, 3, 3, 3))
sketch13.addConstraint(Sketcher.Constraint("Radius", 1, 185.0))
sketch13.addConstraint(Sketcher.Constraint("DistanceY", 1, 2, 0, 2, 25.0))
sketch13.addConstraint(Sketcher.Constraint("DistanceX", 0, 1, 0, 2, 70.9556))
sketch13.addConstraint(Sketcher.Constraint("DistanceX", 2, 2, 2, 1, 22.7))
sketch13.addConstraint(Sketcher.Constraint("DistanceY", 1, 3, -1, 1, 190.0))
sketch13.addConstraint(Sketcher.Constraint("DistanceX", 1, 2, -1, 1, 38.65))
pocket8 = body.newObject("PartDesign::Pocket", "Pocket007")
pocket8.Profile = sketch13
pocket8.Length = 200
pocket8.Reversed = True

# Sketch on XZ plane
sketch14 = body.newObject("Sketcher::SketchObject", "Sketch013")
sketch14.AttachmentSupport = (doc.getObject("XZ_Plane"), [""])
sketch14.MapMode = "FlatFace"
sketch14.AttachmentOffset = App.Placement(V(0, 0, 49.5956), App.Rotation())
add_polygon(sketch14, [(-15, -157), (-15, 5), (-85, 5), (-85, -157)])  # lines 0-3
sketch14.addConstraint(Sketcher.Constraint("Vertical", 0))
sketch14.addConstraint(Sketcher.Constraint("Horizontal", 1))
sketch14.addConstraint(Sketcher.Constraint("Vertical", 2))
sketch14.addConstraint(Sketcher.Constraint("Horizontal", 3))
sketch14.addConstraint(Sketcher.Constraint("DistanceY", 0, 1, 0, 2, 162.0))
sketch14.addConstraint(Sketcher.Constraint("DistanceY", -1, 1, 0, 2, 5.0))
sketch14.addConstraint(Sketcher.Constraint("DistanceX", 1, 2, 1, 1, 70.731))
sketch14.addConstraint(Sketcher.Constraint("DistanceX", 0, 2, -1, 1, 14.7467))
pad6 = body.newObject("PartDesign::Pad", "Pad005")
pad6.Profile = sketch14
pad6.Length = 5
pad6.Reversed = True

# Sketch on XZ plane
sketch15 = body.newObject("Sketcher::SketchObject", "Sketch014")
sketch15.AttachmentSupport = (doc.getObject("XZ_Plane"), [""])
sketch15.MapMode = "FlatFace"
sketch15.AttachmentOffset = App.Placement(V(0, 0, 49.5956), App.Rotation())
sketch15.addGeometry(Part.Circle(V(-50, -76, 0), V(0, 0, 1), 25), False)
sketch15.addConstraint(Sketcher.Constraint("Diameter", 0, 50.0))
sketch15.addConstraint(Sketcher.Constraint("DistanceX", 0, 3, -1, 1, 50.0))
sketch15.addConstraint(Sketcher.Constraint("DistanceY", 0, 3, -1, 1, 76.0))
pocket9 = body.newObject("PartDesign::Pocket", "Pocket008")
pocket9.Profile = sketch15
pocket9.Length = 10

doc.recompute()
